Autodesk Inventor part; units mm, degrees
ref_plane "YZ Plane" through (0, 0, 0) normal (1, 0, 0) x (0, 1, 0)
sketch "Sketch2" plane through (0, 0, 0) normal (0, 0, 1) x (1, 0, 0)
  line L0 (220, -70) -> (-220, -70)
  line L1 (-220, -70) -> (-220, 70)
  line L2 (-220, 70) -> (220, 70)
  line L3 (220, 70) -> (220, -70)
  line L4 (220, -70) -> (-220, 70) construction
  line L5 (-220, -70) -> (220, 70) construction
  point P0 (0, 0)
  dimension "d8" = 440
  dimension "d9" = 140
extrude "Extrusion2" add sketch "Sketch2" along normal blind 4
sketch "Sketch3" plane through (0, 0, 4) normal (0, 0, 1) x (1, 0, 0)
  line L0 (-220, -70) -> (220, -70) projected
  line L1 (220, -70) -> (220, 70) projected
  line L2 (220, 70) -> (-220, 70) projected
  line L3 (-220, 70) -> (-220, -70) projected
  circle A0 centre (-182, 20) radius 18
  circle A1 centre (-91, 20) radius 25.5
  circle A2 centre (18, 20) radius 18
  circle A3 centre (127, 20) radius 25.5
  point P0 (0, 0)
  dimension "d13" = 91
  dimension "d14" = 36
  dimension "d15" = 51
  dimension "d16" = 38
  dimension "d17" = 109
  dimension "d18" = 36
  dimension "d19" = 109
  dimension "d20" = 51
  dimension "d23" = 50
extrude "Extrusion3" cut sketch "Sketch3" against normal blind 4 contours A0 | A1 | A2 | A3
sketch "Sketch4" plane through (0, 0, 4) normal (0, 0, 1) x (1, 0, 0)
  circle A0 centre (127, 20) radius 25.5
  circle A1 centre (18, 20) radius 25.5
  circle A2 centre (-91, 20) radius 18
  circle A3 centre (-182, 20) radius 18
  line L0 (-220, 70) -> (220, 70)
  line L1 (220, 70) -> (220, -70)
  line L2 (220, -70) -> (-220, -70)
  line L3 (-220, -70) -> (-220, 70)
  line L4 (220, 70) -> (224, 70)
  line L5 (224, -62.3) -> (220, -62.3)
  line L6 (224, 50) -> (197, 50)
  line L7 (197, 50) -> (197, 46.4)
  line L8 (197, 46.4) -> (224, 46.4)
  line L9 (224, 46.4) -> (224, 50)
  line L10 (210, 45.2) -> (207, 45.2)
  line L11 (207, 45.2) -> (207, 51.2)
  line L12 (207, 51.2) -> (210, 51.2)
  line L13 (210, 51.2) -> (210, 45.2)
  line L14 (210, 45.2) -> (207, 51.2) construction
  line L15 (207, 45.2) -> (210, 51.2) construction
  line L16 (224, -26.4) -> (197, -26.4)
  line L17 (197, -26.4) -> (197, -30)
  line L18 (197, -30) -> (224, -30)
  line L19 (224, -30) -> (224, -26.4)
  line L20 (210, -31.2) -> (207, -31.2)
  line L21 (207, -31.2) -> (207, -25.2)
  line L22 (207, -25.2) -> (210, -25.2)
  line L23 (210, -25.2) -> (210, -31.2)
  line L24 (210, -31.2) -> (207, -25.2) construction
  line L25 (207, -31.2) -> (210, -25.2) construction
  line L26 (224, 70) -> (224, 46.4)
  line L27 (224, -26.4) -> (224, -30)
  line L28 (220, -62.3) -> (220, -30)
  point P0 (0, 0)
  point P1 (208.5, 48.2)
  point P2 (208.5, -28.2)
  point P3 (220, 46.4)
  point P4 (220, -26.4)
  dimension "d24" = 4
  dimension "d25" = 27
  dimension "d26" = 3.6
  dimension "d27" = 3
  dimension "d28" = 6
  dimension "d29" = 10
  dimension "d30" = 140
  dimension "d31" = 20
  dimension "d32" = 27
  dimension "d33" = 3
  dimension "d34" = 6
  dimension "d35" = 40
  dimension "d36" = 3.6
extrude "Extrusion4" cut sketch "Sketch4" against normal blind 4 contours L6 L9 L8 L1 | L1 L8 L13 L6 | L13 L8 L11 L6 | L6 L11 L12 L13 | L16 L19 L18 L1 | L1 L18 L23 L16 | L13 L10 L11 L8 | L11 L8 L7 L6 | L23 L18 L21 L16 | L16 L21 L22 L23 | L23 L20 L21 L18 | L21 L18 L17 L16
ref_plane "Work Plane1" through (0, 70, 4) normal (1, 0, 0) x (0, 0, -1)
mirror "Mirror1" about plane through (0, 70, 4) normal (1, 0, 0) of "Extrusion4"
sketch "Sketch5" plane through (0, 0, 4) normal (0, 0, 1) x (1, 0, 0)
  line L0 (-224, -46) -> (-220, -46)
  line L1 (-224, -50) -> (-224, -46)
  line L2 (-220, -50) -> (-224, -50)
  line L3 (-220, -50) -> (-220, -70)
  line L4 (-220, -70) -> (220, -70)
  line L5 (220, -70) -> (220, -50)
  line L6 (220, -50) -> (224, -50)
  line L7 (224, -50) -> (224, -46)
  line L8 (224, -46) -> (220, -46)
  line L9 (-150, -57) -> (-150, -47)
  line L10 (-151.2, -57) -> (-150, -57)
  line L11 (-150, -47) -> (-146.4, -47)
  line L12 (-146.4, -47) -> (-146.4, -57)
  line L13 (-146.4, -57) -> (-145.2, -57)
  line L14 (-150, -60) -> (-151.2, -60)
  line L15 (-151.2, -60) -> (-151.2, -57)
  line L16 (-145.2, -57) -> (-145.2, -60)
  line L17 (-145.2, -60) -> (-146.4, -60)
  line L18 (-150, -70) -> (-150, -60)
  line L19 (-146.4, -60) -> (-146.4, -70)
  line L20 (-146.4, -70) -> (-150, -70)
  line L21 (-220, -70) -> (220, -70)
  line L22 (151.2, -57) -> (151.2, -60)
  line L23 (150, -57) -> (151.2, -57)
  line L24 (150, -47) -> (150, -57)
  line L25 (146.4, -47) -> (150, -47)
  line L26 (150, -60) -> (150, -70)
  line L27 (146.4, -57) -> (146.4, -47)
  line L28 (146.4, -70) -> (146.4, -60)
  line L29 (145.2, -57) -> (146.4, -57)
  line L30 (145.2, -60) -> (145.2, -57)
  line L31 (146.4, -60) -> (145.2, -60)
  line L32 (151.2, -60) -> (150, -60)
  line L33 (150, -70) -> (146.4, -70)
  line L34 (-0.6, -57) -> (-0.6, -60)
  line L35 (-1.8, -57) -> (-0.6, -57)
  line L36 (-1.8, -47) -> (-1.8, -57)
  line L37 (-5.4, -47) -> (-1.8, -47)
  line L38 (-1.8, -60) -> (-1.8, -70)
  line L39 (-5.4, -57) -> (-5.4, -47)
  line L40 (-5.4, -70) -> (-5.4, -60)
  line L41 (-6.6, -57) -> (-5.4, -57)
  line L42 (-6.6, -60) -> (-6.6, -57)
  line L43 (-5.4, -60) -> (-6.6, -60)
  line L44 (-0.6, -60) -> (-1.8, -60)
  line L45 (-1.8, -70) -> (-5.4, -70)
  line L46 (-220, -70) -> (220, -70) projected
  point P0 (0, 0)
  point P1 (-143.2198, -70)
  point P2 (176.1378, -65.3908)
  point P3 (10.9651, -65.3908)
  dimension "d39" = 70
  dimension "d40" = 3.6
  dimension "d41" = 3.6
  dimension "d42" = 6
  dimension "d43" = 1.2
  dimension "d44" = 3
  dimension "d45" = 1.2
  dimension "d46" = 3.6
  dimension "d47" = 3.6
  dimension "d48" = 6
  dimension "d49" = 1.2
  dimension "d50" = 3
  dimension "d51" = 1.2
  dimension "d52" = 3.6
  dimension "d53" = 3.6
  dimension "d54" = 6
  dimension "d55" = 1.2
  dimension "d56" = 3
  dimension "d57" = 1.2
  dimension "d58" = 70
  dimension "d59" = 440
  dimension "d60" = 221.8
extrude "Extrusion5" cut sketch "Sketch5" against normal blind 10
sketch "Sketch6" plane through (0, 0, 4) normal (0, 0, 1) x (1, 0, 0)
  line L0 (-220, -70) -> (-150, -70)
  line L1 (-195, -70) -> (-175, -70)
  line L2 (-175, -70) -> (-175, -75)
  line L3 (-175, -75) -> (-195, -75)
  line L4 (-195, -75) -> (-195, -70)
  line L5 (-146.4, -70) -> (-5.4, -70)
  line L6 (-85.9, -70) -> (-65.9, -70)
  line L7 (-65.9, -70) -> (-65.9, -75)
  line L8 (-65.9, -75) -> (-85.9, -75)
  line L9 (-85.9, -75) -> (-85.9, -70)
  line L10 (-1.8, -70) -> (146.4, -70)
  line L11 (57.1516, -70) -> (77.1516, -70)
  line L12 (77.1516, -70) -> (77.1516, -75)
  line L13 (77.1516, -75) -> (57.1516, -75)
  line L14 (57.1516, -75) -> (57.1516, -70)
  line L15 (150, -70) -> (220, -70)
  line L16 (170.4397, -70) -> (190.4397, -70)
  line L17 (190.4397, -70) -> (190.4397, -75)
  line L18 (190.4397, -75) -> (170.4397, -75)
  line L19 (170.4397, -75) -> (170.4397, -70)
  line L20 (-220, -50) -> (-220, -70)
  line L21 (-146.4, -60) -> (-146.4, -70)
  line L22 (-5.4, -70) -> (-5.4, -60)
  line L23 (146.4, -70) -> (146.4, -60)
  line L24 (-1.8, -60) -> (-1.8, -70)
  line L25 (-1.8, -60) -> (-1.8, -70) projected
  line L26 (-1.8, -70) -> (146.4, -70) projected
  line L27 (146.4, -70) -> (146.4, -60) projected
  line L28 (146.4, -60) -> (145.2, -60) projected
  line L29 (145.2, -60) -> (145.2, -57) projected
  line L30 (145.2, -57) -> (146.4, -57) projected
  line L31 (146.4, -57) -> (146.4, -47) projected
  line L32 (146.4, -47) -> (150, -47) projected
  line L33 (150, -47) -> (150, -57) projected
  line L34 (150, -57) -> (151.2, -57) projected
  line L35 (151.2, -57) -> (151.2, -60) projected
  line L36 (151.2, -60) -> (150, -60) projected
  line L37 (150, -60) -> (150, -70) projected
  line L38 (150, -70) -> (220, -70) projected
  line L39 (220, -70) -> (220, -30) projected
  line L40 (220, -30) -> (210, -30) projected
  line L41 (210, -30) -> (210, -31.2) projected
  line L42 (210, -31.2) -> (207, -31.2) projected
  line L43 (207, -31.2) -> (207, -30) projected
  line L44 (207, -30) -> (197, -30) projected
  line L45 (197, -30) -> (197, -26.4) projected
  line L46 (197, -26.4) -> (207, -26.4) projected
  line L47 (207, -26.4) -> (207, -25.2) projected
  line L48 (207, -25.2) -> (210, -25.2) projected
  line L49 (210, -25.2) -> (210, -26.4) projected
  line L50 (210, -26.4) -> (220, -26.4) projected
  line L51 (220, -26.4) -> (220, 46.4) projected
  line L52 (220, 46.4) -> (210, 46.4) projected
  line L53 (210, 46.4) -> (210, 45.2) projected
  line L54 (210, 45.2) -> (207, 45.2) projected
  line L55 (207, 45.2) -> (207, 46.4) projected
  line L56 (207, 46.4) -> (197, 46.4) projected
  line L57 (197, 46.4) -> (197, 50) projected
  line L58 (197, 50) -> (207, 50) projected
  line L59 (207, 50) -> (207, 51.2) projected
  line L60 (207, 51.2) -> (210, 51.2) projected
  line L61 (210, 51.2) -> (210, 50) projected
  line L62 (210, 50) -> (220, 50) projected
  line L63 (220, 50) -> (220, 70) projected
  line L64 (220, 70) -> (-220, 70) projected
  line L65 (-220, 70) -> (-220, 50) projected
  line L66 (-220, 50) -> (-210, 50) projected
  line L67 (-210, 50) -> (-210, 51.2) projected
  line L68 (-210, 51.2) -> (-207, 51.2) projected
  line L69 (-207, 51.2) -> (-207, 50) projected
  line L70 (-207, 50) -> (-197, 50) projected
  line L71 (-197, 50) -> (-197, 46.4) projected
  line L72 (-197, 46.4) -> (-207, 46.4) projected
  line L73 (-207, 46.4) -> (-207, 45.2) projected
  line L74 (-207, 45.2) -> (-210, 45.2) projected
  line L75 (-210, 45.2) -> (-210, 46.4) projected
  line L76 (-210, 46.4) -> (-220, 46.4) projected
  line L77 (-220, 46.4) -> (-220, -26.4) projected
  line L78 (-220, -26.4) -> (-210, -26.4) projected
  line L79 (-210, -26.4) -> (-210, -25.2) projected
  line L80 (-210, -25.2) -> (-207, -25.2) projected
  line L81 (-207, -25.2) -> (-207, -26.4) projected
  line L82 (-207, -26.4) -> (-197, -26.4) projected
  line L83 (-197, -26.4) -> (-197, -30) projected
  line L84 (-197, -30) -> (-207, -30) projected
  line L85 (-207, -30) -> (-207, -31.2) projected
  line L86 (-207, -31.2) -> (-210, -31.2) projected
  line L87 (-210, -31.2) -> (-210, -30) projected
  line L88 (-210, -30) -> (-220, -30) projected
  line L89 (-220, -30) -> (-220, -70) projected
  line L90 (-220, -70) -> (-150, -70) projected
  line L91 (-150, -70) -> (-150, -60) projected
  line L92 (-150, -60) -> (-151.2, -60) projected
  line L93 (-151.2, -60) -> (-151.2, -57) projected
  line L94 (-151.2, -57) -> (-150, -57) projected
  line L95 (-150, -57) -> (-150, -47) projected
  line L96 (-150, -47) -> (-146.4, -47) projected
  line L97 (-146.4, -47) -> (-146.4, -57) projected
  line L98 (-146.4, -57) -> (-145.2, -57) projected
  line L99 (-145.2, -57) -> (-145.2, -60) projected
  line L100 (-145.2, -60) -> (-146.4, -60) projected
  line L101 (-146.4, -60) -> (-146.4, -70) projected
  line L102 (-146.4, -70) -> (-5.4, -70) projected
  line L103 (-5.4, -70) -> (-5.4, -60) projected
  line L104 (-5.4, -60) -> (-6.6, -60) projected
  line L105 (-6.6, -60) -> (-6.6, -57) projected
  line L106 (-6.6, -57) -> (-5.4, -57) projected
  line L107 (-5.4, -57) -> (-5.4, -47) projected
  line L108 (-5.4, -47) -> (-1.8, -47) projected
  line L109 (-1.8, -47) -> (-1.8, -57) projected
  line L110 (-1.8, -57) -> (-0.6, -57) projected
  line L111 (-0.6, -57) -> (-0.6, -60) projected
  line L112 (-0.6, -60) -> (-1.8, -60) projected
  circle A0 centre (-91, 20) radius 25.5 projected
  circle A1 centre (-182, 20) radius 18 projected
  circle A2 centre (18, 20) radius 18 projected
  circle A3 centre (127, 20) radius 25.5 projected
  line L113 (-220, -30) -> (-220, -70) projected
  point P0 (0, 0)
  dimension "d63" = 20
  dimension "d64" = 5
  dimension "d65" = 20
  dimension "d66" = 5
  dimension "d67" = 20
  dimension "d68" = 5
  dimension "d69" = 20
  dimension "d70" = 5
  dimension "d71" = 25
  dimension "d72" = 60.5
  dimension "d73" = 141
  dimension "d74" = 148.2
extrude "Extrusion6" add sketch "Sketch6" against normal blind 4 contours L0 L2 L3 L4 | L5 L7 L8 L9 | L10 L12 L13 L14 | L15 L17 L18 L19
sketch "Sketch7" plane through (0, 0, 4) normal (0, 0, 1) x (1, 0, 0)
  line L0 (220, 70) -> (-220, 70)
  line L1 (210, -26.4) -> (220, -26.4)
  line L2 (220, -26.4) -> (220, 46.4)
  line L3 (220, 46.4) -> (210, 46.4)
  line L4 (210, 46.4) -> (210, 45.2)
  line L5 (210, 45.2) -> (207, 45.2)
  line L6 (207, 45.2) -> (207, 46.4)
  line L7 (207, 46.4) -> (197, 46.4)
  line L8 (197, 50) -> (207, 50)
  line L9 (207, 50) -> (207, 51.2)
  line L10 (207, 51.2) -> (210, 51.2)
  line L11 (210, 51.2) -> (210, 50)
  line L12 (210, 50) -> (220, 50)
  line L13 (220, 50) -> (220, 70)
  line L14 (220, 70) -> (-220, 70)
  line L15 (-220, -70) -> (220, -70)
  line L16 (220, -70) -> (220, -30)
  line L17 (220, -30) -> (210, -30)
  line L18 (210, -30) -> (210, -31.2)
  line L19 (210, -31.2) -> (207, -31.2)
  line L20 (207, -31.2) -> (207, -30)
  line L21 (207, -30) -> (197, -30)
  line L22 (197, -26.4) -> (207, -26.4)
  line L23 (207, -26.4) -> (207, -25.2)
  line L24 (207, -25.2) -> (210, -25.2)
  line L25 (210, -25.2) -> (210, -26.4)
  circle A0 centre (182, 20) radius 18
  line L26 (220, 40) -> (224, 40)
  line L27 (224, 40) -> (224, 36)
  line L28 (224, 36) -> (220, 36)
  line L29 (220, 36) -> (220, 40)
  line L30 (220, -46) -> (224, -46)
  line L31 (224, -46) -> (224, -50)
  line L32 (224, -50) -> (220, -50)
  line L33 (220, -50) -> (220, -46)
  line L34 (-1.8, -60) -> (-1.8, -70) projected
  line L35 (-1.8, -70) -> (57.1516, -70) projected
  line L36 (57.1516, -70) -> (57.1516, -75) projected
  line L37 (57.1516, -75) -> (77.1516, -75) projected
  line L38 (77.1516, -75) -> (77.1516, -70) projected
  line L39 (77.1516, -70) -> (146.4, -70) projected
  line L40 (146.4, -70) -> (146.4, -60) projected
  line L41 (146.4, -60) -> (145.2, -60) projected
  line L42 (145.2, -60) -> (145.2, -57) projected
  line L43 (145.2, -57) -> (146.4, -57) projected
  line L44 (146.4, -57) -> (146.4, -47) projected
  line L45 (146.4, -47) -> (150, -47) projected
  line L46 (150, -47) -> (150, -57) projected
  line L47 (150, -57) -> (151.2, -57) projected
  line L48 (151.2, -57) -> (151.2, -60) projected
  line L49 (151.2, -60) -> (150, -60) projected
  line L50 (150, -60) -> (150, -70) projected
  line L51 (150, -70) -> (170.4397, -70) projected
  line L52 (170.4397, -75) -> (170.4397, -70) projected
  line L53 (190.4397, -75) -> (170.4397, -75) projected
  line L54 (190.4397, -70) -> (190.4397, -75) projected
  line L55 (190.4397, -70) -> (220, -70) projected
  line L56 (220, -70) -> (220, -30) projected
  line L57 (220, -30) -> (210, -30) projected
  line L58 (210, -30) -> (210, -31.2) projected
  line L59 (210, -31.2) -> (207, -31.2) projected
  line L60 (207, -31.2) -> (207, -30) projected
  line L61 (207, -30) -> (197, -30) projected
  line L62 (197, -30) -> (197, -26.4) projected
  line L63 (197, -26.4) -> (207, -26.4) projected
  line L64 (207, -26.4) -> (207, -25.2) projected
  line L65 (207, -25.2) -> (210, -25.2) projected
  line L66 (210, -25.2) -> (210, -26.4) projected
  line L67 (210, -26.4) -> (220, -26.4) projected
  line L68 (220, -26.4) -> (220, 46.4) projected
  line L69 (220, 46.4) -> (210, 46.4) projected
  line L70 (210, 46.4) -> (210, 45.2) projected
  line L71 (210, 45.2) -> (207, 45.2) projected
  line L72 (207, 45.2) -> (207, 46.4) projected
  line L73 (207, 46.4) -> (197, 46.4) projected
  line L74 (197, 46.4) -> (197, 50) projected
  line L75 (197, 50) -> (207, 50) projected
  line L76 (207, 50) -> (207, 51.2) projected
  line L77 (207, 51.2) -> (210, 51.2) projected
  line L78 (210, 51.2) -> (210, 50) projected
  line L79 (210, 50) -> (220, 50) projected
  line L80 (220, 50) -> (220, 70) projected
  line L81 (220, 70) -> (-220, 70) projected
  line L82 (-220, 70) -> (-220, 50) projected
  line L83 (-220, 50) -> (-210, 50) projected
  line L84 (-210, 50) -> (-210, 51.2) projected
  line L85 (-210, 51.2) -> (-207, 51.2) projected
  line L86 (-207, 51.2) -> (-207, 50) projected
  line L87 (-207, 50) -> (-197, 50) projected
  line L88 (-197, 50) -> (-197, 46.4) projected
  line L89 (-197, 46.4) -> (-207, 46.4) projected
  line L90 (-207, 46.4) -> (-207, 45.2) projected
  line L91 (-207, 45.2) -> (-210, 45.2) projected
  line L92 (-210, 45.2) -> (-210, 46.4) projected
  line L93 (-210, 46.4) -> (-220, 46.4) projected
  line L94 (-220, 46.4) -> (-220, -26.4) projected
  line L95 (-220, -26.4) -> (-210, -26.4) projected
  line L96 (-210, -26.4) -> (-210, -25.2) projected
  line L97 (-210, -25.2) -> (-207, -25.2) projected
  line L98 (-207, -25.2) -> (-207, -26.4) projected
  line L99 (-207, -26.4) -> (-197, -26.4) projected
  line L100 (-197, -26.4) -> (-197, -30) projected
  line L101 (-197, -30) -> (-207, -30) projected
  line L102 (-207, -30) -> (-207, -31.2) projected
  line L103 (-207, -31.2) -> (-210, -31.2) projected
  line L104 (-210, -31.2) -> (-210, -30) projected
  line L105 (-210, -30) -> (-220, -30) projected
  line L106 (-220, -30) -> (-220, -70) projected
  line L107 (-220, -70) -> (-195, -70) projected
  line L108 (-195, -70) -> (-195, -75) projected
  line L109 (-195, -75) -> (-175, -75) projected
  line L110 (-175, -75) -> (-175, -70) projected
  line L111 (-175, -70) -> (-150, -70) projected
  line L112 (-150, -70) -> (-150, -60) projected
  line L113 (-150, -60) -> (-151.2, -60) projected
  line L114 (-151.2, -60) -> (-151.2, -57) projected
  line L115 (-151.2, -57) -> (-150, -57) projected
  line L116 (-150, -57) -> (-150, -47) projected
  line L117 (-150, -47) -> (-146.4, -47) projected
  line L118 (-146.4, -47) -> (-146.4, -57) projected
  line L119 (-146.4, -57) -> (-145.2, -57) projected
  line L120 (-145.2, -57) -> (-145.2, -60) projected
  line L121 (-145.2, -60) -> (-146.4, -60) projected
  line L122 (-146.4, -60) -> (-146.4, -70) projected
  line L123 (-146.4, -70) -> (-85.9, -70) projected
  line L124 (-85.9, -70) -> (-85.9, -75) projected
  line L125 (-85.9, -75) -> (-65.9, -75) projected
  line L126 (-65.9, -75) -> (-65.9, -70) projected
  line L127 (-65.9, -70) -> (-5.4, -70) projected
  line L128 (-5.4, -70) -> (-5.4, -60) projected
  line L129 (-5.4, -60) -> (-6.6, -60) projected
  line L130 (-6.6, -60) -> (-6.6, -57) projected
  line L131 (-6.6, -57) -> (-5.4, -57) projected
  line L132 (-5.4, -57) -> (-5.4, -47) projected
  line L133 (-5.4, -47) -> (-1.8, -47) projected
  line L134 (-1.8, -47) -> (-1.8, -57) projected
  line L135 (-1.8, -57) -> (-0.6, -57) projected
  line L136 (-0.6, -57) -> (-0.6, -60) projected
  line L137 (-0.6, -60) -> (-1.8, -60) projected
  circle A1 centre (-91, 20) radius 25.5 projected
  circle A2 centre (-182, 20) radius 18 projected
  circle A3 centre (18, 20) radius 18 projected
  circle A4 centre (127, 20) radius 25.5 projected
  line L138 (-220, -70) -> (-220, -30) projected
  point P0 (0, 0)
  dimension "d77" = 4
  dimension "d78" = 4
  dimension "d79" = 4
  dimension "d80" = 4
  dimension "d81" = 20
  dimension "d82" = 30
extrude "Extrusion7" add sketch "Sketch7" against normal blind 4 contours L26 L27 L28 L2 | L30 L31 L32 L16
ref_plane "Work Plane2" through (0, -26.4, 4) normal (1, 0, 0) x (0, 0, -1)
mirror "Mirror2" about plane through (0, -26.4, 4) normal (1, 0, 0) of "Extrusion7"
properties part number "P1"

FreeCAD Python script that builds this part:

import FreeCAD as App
import Part
import Sketcher
Q = App.Units.Quantity

doc = App.newDocument("Part")
params = doc.addObject("Spreadsheet::Sheet", "Params")
for row, (alias, value) in enumerate([
    ("sketch1_width", "440 mm"),
    ("sketch1_height", "140 mm"),
    ("pad1_length", "4 mm"),
    ("sketch2_diameter", "36 mm"),
    ("sketch2_diameter2", "51 mm"),
    ("pocket1_length", "4 mm"),
    ("sketch3_width", "3 mm"),
    ("sketch3_width2", "10 mm"),
    ("sketch3_height", "3.6 mm"),
    ("sketch3_width3", "14 mm"),
    ("pocket2_length", "4 mm"),
    ("sketch4_height", "3 mm"),
    ("sketch4_width", "3.6 mm"),
    ("sketch4_width2", "1.2 mm"),
    ("sketch4_height2", "10 mm"),
    ("pocket3_length", "10 mm"),
    ("sketch5_width", "20 mm"),
    ("sketch5_height", "5 mm"),
    ("pad2_length", "4 mm"),
    ("sketch6_width", "4 mm"),
    ("pad3_length", "4 mm"),
], start=1):
    params.set(f"A{row}", alias)
    params.set(f"B{row}", "=" + value)
    params.setAlias(f"B{row}", alias)

body = doc.addObject("PartDesign::Body", "Body")

sketch1 = body.newObject("Sketcher::SketchObject", "Sketch")
sketch1.AttachmentSupport = (doc.getObject("XY_Plane"), [""])
sketch1.MapMode = "FlatFace"
sketch1.addGeometry([
    Part.LineSegment(App.Vector(-220, -70, 0), App.Vector(220, -70, 0)),
    Part.LineSegment(App.Vector(220, -70, 0), App.Vector(220, 70, 0)),
    Part.LineSegment(App.Vector(220, 70, 0), App.Vector(-220, 70, 0)),
    Part.LineSegment(App.Vector(-220, 70, 0), App.Vector(-220, -70, 0)),
], False)
sketch1.addConstraint([
    Sketcher.Constraint("Coincident", 0, 2, 1, 1),
    Sketcher.Constraint("Coincident", 1, 2, 2, 1),
    Sketcher.Constraint("Coincident", 2, 2, 3, 1),
    Sketcher.Constraint("Coincident", 3, 2, 0, 1),
    Sketcher.Constraint("Horizontal", 0),
    Sketcher.Constraint("Vertical", 1),
    Sketcher.Constraint("Horizontal", 2),
    Sketcher.Constraint("Vertical", 3),
    Sketcher.Constraint("Symmetric", 0, 2, 2, 2, -1, 1),
    Sketcher.Constraint("DistanceX", 0, 1, 0, 2, Q("440 mm")),
    Sketcher.Constraint("DistanceY", 1, 1, 1, 2, Q("140 mm")),
])
sketch1.setExpression("Constraints[9]", "Params.sketch1_width")
sketch1.setExpression("Constraints[10]", "Params.sketch1_height")
pad1 = body.newObject("PartDesign::Pad", "Pad")
pad1.Profile = sketch1
pad1.setExpression("Length", "Params.pad1_length")

sketch2 = body.newObject("Sketcher::SketchObject", "Sketch001")
sketch2.AttachmentSupport = (doc.getObject("XY_Plane"), [""])
sketch2.MapMode = "FlatFace"
sketch2.AttachmentOffset = App.Placement(App.Vector(0, 0, 4), App.Rotation())
sketch2.addGeometry([
    Part.Circle(App.Vector(-182, 20, 0), App.Vector(0, 0, 1), 18),
    Part.Circle(App.Vector(-91, 20, 0), App.Vector(0, 0, 1), 25.5),
    Part.Circle(App.Vector(18, 20, 0), App.Vector(0, 0, 1), 18),
    Part.Circle(App.Vector(127, 20, 0), App.Vector(0, 0, 1), 25.5),
], False)
sketch2.addConstraint([
    Sketcher.Constraint("Equal", 0, 2),
    Sketcher.Constraint("Equal", 1, 3),
    Sketcher.Constraint("Horizontal", 0, 3, 1, 3),
    Sketcher.Constraint("Horizontal", 1, 3, 2, 3),
    Sketcher.Constraint("Horizontal", 2, 3, 3, 3),
    Sketcher.Constraint("Diameter", 0, Q("36 mm")),
    Sketcher.Constraint("Diameter", 1, Q("51 mm")),
    Sketcher.Constraint("DistanceX", 1, 3, -1, 1, Q("91 mm")),
    Sketcher.Constraint("DistanceX", 0, 3, 1, 3, Q("91 mm")),
    Sketcher.Constraint("DistanceX", 1, 3, 2, 3, Q("109 mm")),
    Sketcher.Constraint("DistanceX", 2, 3, 3, 3, Q("109 mm")),
    Sketcher.Constraint("DistanceY", -1, 1, 0, 3, Q("20 mm")),
])
sketch2.setExpression("Constraints[5]", "Params.sketch2_diameter")
sketch2.setExpression("Constraints[6]", "Params.sketch2_diameter2")
pocket1 = body.newObject("PartDesign::Pocket", "Pocket")
pocket1.Profile = sketch2
pocket1.setExpression("Length", "Params.pocket1_length")

sketch3 = body.newObject("Sketcher::SketchObject", "Sketch002")
sketch3.AttachmentSupport = (doc.getObject("XY_Plane"), [""])
sketch3.MapMode = "FlatFace"
sketch3.AttachmentOffset = App.Placement(App.Vector(0, 0, 4), App.Rotation())
sketch3.addGeometry([
    Part.LineSegment(App.Vector(224, 50, 0), App.Vector(210, 50, 0)),
    Part.LineSegment(App.Vector(210, 50, 0), App.Vector(210, 51.2, 0)),
    Part.LineSegment(App.Vector(210, 51.2, 0), App.Vector(207, 51.2, 0)),
    Part.LineSegment(App.Vector(207, 51.2, 0), App.Vector(207, 50, 0)),
    Part.LineSegment(App.Vector(207, 50, 0), App.Vector(197, 50, 0)),
    Part.LineSegment(App.Vector(197, 50, 0), App.Vector(197, 46.4, 0)),
    Part.LineSegment(App.Vector(197, 46.4, 0), App.Vector(207, 46.4, 0)),
    Part.LineSegment(App.Vector(207, 46.4, 0), App.Vector(207, 45.2, 0)),
    Part.LineSegment(App.Vector(207, 45.2, 0), App.Vector(210, 45.2, 0)),
    Part.LineSegment(App.Vector(210, 45.2, 0), App.Vector(210, 46.4, 0)),
    Part.LineSegment(App.Vector(210, 46.4, 0), App.Vector(224, 46.4, 0)),
    Part.LineSegment(App.Vector(224, 46.4, 0), App.Vector(224, 50, 0)),
    Part.LineSegment(App.Vector(224, -26.4, 0), App.Vector(210, -26.4, 0)),
    Part.LineSegment(App.Vector(210, -26.4, 0), App.Vector(210, -25.2, 0)),
    Part.LineSegment(App.Vector(210, -25.2, 0), App.Vector(207, -25.2, 0)),
    Part.LineSegment(App.Vector(207, -25.2, 0), App.Vector(207, -26.4, 0)),
    Part.LineSegment(App.Vector(207, -26.4, 0), App.Vector(197, -26.4, 0)),
    Part.LineSegment(App.Vector(197, -26.4, 0), App.Vector(197, -30, 0)),
    Part.LineSegment(App.Vector(197, -30, 0), App.Vector(207, -30, 0)),
    Part.LineSegment(App.Vector(207, -30, 0), App.Vector(207, -31.2, 0)),
    Part.LineSegment(App.Vector(207, -31.2, 0), App.Vector(210, -31.2, 0)),
    Part.LineSegment(App.Vector(210, -31.2, 0), App.Vector(210, -30, 0)),
    Part.LineSegment(App.Vector(210, -30, 0), App.Vector(224, -30, 0)),
    Part.LineSegment(App.Vector(224, -30, 0), App.Vector(224, -26.4, 0)),
], False)
sketch3.addConstraint([
    Sketcher.Constraint("Coincident", 0, 2, 1, 1),
    Sketcher.Constraint("Coincident", 1, 2, 2, 1),
    Sketcher.Constraint("Coincident", 2, 2, 3, 1),
    Sketcher.Constraint("Coincident", 3, 2, 4, 1),
    Sketcher.Constraint("Coincident", 4, 2, 5, 1),
    Sketcher.Constraint("Coincident", 5, 2, 6, 1),
    Sketcher.Constraint("Coincident", 6, 2, 7, 1),
    Sketcher.Constraint("Coincident", 7, 2, 8, 1),
    Sketcher.Constraint("Coincident", 8, 2, 9, 1),
    Sketcher.Constraint("Coincident", 9, 2, 10, 1),
    Sketcher.Constraint("Coincident", 10, 2, 11, 1),
    Sketcher.Constraint("Coincident", 11, 2, 0, 1),
    Sketcher.Constraint("Coincident", 12, 2, 13, 1),
    Sketcher.Constraint("Coincident", 13, 2, 14, 1),
    Sketcher.Constraint("Coincident", 14, 2, 15, 1),
    Sketcher.Constraint("Coincident", 15, 2, 16, 1),
    Sketcher.Constraint("Coincident", 16, 2, 17, 1),
    Sketcher.Constraint("Coincident", 17, 2, 18, 1),
    Sketcher.Constraint("Coincident", 18, 2, 19, 1),
    Sketcher.Constraint("Coincident", 19, 2, 20, 1),
    Sketcher.Constraint("Coincident", 20, 2, 21, 1),
    Sketcher.Constraint("Coincident", 21, 2, 22, 1),
    Sketcher.Constraint("Coincident", 22, 2, 23, 1),
    Sketcher.Constraint("Coincident", 23, 2, 12, 1),
    Sketcher.Constraint("Horizontal", 0),
    Sketcher.Constraint("Vertical", 1),
    Sketcher.Constraint("Horizontal", 2),
    Sketcher.Constraint("Vertical", 3),
    Sketcher.Constraint("Horizontal", 4),
    Sketcher.Constraint("Vertical", 5),
    Sketcher.Constraint("Horizontal", 6),
    Sketcher.Constraint("Vertical", 7),
    Sketcher.Constraint("Horizontal", 8),
    Sketcher.Constraint("Vertical", 9),
    Sketcher.Constraint("Horizontal", 10),
    Sketcher.Constraint("Vertical", 11),
    Sketcher.Constraint("Horizontal", 12),
    Sketcher.Constraint("Vertical", 13),
    Sketcher.Constraint("Horizontal", 14),
    Sketcher.Constraint("Vertical", 15),
    Sketcher.Constraint("Horizontal", 16),
    Sketcher.Constraint("Vertical", 17),
    Sketcher.Constraint("Horizontal", 18),
    Sketcher.Constraint("Vertical", 19),
    Sketcher.Constraint("Horizontal", 20),
    Sketcher.Constraint("Vertical", 21),
    Sketcher.Constraint("Horizontal", 22),
    Sketcher.Constraint("Vertical", 23),
    Sketcher.Constraint("Horizontal", 0, 2, 3, 2),
    Sketcher.Constraint("Horizontal", 6, 2, 9, 2),
    Sketcher.Constraint("Horizontal", 12, 2, 15, 2),
    Sketcher.Constraint("Horizontal", 18, 2, 21, 2),
    Sketcher.Constraint("Vertical", 3, 2, 6, 2),
    Sketcher.Constraint("Vertical", 1, 2, 8, 2),
    Sketcher.Constraint("Vertical", 9, 2, 12, 2),
    Sketcher.Constraint("Vertical", 7, 2, 14, 2),
    Sketcher.Constraint("Vertical", 5, 2, 16, 2),
    Sketcher.Constraint("Vertical", 15, 2, 18, 2),
    Sketcher.Constraint("Vertical", 13, 2, 20, 2),
    Sketcher.Constraint("Vertical", 11, 2, 22, 2),
    Sketcher.Constraint("Equal", 3, 7),
    Sketcher.Constraint("Equal", 9, 13),
    Sketcher.Constraint("Equal", 11, 17),
    Sketcher.Constraint("Equal", 15, 19),
    Sketcher.Constraint("DistanceX", 2, 2, 2, 1, Q("3 mm")),
    Sketcher.Constraint("DistanceX", 4, 2, 4, 1, Q("10 mm")),
    Sketcher.Constraint("DistanceY", 5, 2, 5, 1, Q("3.6 mm")),
    Sketcher.Constraint("DistanceY", 7, 2, 2, 2, Q("6 mm")),
    Sketcher.Constraint("DistanceX", 0, 2, 0, 1, Q("14 mm")),
    Sketcher.Constraint("DistanceX", -1, 1, 0, 2, Q("210 mm")),
    Sketcher.Constraint("DistanceY", -1, 1, 0, 2, Q("50 mm")),
    Sketcher.Constraint("DistanceY", 17, 2, -1, 1, Q("30 mm")),
])
sketch3.setExpression("Constraints[64]", "Params.sketch3_width")
sketch3.setExpression("Constraints[65]", "Params.sketch3_width2")
sketch3.setExpression("Constraints[66]", "Params.sketch3_height")
sketch3.setExpression("Constraints[68]", "Params.sketch3_width3")
pocket2 = body.newObject("PartDesign::Pocket", "Pocket001")
pocket2.Profile = sketch3
pocket2.setExpression("Length", "Params.pocket2_length")
doc.recompute()

mirrored = body.newObject("PartDesign::Mirrored", "Mirrored")
mirrored.Originals = [pocket2]
mirrored.MirrorPlane = (doc.getObject("YZ_Plane"), [""])
body.Tip = mirrored

sketch4 = body.newObject("Sketcher::SketchObject", "Sketch003")
sketch4.AttachmentSupport = (doc.getObject("XY_Plane"), [""])
sketch4.MapMode = "FlatFace"
sketch4.AttachmentOffset = App.Placement(App.Vector(0, 0, 4), App.Rotation())
sketch4.addGeometry([
    Part.LineSegment(App.Vector(-150, -60, 0), App.Vector(-150, -70, 0)),
    Part.LineSegment(App.Vector(-150, -70, 0), App.Vector(-146.4, -70, 0)),
    Part.LineSegment(App.Vector(-146.4, -70, 0), App.Vector(-146.4, -60, 0)),
    Part.LineSegment(App.Vector(-146.4, -60, 0), App.Vector(-145.2, -60, 0)),
    Part.LineSegment(App.Vector(-145.2, -60, 0), App.Vector(-145.2, -57, 0)),
    Part.LineSegment(App.Vector(-145.2, -57, 0), App.Vector(-146.4, -57, 0)),
    Part.LineSegment(App.Vector(-146.4, -57, 0), App.Vector(-146.4, -47, 0)),
    Part.LineSegment(App.Vector(-146.4, -47, 0), App.Vector(-150, -47, 0)),
    Part.LineSegment(App.Vector(-150, -47, 0), App.Vector(-150, -57, 0)),
    Part.LineSegment(App.Vector(-150, -57, 0), App.Vector(-151.2, -57, 0)),
    Part.LineSegment(App.Vector(-151.2, -57, 0), App.Vector(-151.2, -60, 0)),
    Part.LineSegment(App.Vector(-151.2, -60, 0), App.Vector(-150, -60, 0)),
    Part.LineSegment(App.Vector(146.4, -60, 0), App.Vector(146.4, -70, 0)),
    Part.LineSegment(App.Vector(146.4, -70, 0), App.Vector(150, -70, 0)),
    Part.LineSegment(App.Vector(150, -70, 0), App.Vector(150, -60, 0)),
    Part.LineSegment(App.Vector(150, -60, 0), App.Vector(151.2, -60, 0)),
    Part.LineSegment(App.Vector(151.2, -60, 0), App.Vector(151.2, -57, 0)),
    Part.LineSegment(App.Vector(151.2, -57, 0), App.Vector(150, -57, 0)),
    Part.LineSegment(App.Vector(150, -57, 0), App.Vector(150, -47, 0)),
    Part.LineSegment(App.Vector(150, -47, 0), App.Vector(146.4, -47, 0)),
    Part.LineSegment(App.Vector(146.4, -47, 0), App.Vector(146.4, -57, 0)),
    Part.LineSegment(App.Vector(146.4, -57, 0), App.Vector(145.2, -57, 0)),
    Part.LineSegment(App.Vector(145.2, -57, 0), App.Vector(145.2, -60, 0)),
    Part.LineSegment(App.Vector(145.2, -60, 0), App.Vector(146.4, -60, 0)),
    Part.LineSegment(App.Vector(-5.4, -60, 0), App.Vector(-5.4, -70, 0)),
    Part.LineSegment(App.Vector(-5.4, -70, 0), App.Vector(-1.8, -70, 0)),
    Part.LineSegment(App.Vector(-1.8, -70, 0), App.Vector(-1.8, -60, 0)),
    Part.LineSegment(App.Vector(-1.8, -60, 0), App.Vector(-0.6, -60, 0)),
    Part.LineSegment(App.Vector(-0.6, -60, 0), App.Vector(-0.6, -57, 0)),
    Part.LineSegment(App.Vector(-0.6, -57, 0), App.Vector(-1.8, -57, 0)),
    Part.LineSegment(App.Vector(-1.8, -57, 0), App.Vector(-1.8, -47, 0)),
    Part.LineSegment(App.Vector(-1.8, -47, 0), App.Vector(-5.4, -47, 0)),
    Part.LineSegment(App.Vector(-5.4, -47, 0), App.Vector(-5.4, -57, 0)),
    Part.LineSegment(App.Vector(-5.4, -57, 0), App.Vector(-6.6, -57, 0)),
    Part.LineSegment(App.Vector(-6.6, -57, 0), App.Vector(-6.6, -60, 0)),
    Part.LineSegment(App.Vector(-6.6, -60, 0), App.Vector(-5.4, -60, 0)),
], False)
sketch4.addConstraint([
    Sketcher.Constraint("Coincident", 0, 2, 1, 1),
    Sketcher.Constraint("Coincident", 1, 2, 2, 1),
    Sketcher.Constraint("Coincident", 2, 2, 3, 1),
    Sketcher.Constraint("Coincident", 3, 2, 4, 1),
    Sketcher.Constraint("Coincident", 4, 2, 5, 1),
    Sketcher.Constraint("Coincident", 5, 2, 6, 1),
    Sketcher.Constraint("Coincident", 6, 2, 7, 1),
    Sketcher.Constraint("Coincident", 7, 2, 8, 1),
    Sketcher.Constraint("Coincident", 8, 2, 9, 1),
    Sketcher.Constraint("Coincident", 9, 2, 10, 1),
    Sketcher.Constraint("Coincident", 10, 2, 11, 1),
    Sketcher.Constraint("Coincident", 11, 2, 0, 1),
    Sketcher.Constraint("Coincident", 12, 2, 13, 1),
    Sketcher.Constraint("Coincident", 13, 2, 14, 1),
    Sketcher.Constraint("Coincident", 14, 2, 15, 1),
    Sketcher.Constraint("Coincident", 15, 2, 16, 1),
    Sketcher.Constraint("Coincident", 16, 2, 17, 1),
    Sketcher.Constraint("Coincident", 17, 2, 18, 1),
    Sketcher.Constraint("Coincident", 18, 2, 19, 1),
    Sketcher.Constraint("Coincident", 19, 2, 20, 1),
    Sketcher.Constraint("Coincident", 20, 2, 21, 1),
    Sketcher.Constraint("Coincident", 21, 2, 22, 1),
    Sketcher.Constraint("Coincident", 22, 2, 23, 1),
    Sketcher.Constraint("Coincident", 23, 2, 12, 1),
    Sketcher.Constraint("Coincident", 24, 2, 25, 1),
    Sketcher.Constraint("Coincident", 25, 2, 26, 1),
    Sketcher.Constraint("Coincident", 26, 2, 27, 1),
    Sketcher.Constraint("Coincident", 27, 2, 28, 1),
    Sketcher.Constraint("Coincident", 28, 2, 29, 1),
    Sketcher.Constraint("Coincident", 29, 2, 30, 1),
    Sketcher.Constraint("Coincident", 30, 2, 31, 1),
    Sketcher.Constraint("Coincident", 31, 2, 32, 1),
    Sketcher.Constraint("Coincident", 32, 2, 33, 1),
    Sketcher.Constraint("Coincident", 33, 2, 34, 1),
    Sketcher.Constraint("Coincident", 34, 2, 35, 1),
    Sketcher.Constraint("Coincident", 35, 2, 24, 1),
    Sketcher.Constraint("Vertical", 0),
    Sketcher.Constraint("Horizontal", 1),
    Sketcher.Constraint("Vertical", 2),
    Sketcher.Constraint("Horizontal", 3),
    Sketcher.Constraint("Vertical", 4),
    Sketcher.Constraint("Horizontal", 5),
    Sketcher.Constraint("Vertical", 6),
    Sketcher.Constraint("Horizontal", 7),
    Sketcher.Constraint("Vertical", 8),
    Sketcher.Constraint("Horizontal", 9),
    Sketcher.Constraint("Vertical", 10),
    Sketcher.Constraint("Horizontal", 11),
    Sketcher.Constraint("Vertical", 12),
    Sketcher.Constraint("Horizontal", 13),
    Sketcher.Constraint("Vertical", 14),
    Sketcher.Constraint("Horizontal", 15),
    Sketcher.Constraint("Vertical", 16),
    Sketcher.Constraint("Horizontal", 17),
    Sketcher.Constraint("Vertical", 18),
    Sketcher.Constraint("Horizontal", 19),
    Sketcher.Constraint("Vertical", 20),
    Sketcher.Constraint("Horizontal", 21),
    Sketcher.Constraint("Vertical", 22),
    Sketcher.Constraint("Horizontal", 23),
    Sketcher.Constraint("Vertical", 24),
    Sketcher.Constraint("Horizontal", 25),
    Sketcher.Constraint("Vertical", 26),
    Sketcher.Constraint("Horizontal", 27),
    Sketcher.Constraint("Vertical", 28),
    Sketcher.Constraint("Horizontal", 29),
    Sketcher.Constraint("Vertical", 30),
    Sketcher.Constraint("Horizontal", 31),
    Sketcher.Constraint("Vertical", 32),
    Sketcher.Constraint("Horizontal", 33),
    Sketcher.Constraint("Vertical", 34),
    Sketcher.Constraint("Horizontal", 35),
    Sketcher.Constraint("Symmetric", 1, 2, 12, 2, -2),
    Sketcher.Constraint("Symmetric", 11, 2, 14, 2, -2),
    Sketcher.Constraint("Symmetric", 9, 2, 16, 2, -2),
    Sketcher.Constraint("Symmetric", 7, 2, 18, 2, -2),
    Sketcher.Constraint("Symmetric", 5, 2, 20, 2, -2),
    Sketcher.Constraint("Symmetric", 3, 2, 22, 2, -2),
    Sketcher.Constraint("Horizontal", 5, 2, 8, 2),
    Sketcher.Constraint("Horizontal", 3, 2, 10, 2),
    Sketcher.Constraint("Horizontal", 13, 2, 24, 2),
    Sketcher.Constraint("Horizontal", 23, 2, 26, 2),
    Sketcher.Constraint("Horizontal", 21, 2, 28, 2),
    Sketcher.Constraint("Horizontal", 19, 2, 30, 2),
    Sketcher.Constraint("Horizontal", 29, 2, 32, 2),
    Sketcher.Constraint("Horizontal", 27, 2, 34, 2),
    Sketcher.Constraint("Vertical", 2, 2, 5, 2),
    Sketcher.Constraint("Vertical", 0, 2, 7, 2),
    Sketcher.Constraint("Vertical", 26, 2, 29, 2),
    Sketcher.Constraint("Vertical", 24, 2, 31, 2),
    Sketcher.Constraint("Equal", 5, 9),
    Sketcher.Constraint("Equal", 19, 25),
    Sketcher.Constraint("Equal", 23, 27),
    Sketcher.Constraint("Equal", 29, 33),
    Sketcher.Constraint("Equal", 2, 6),
    Sketcher.Constraint("DistanceY", 4, 1, 4, 2, Q("3 mm")),
    Sketcher.Constraint("DistanceX", 1, 1, 1, 2, Q("3.6 mm")),
    Sketcher.Constraint("DistanceX", 3, 1, 3, 2, Q("1.2 mm")),
    Sketcher.Constraint("DistanceY", 0, 2, -1, 1, Q("70 mm")),
    Sketcher.Constraint("DistanceY", 0, 2, 0, 1, Q("10 mm")),
    Sketcher.Constraint("DistanceX", 0, 2, -1, 1, Q("150 mm")),
    Sketcher.Constraint("DistanceX", 1, 2, 24, 2, Q("141 mm")),
])
sketch4.setExpression("Constraints[95]", "Params.sketch4_height")
sketch4.setExpression("Constraints[96]", "Params.sketch4_width")
sketch4.setExpression("Constraints[97]", "Params.sketch4_width2")
sketch4.setExpression("Constraints[99]", "Params.sketch4_height2")
pocket3 = body.newObject("PartDesign::Pocket", "Pocket002")
pocket3.Profile = sketch4
pocket3.setExpression("Length", "Params.pocket3_length")

sketch5 = body.newObject("Sketcher::SketchObject", "Sketch004")
sketch5.AttachmentSupport = (doc.getObject("XY_Plane"), [""])
sketch5.MapMode = "FlatFace"
sketch5.AttachmentOffset = App.Placement(App.Vector(0, 0, 4), App.Rotation())
sketch5.addGeometry([
    Part.LineSegment(App.Vector(-175, -70, 0), App.Vector(-195, -70, 0)),
    Part.LineSegment(App.Vector(-195, -70, 0), App.Vector(-195, -75, 0)),
    Part.LineSegment(App.Vector(-195, -75, 0), App.Vector(-175, -75, 0)),
    Part.LineSegment(App.Vector(-175, -75, 0), App.Vector(-175, -70, 0)),
    Part.LineSegment(App.Vector(-65.9, -70, 0), App.Vector(-85.9, -70, 0)),
    Part.LineSegment(App.Vector(-85.9, -70, 0), App.Vector(-85.9, -75, 0)),
    Part.LineSegment(App.Vector(-85.9, -75, 0), App.Vector(-65.9, -75, 0)),
    Part.LineSegment(App.Vector(-65.9, -75, 0), App.Vector(-65.9, -70, 0)),
    Part.LineSegment(App.Vector(77.1516, -70, 0), App.Vector(57.1516, -70, 0)),
    Part.LineSegment(App.Vector(57.1516, -70, 0), App.Vector(57.1516, -75, 0)),
    Part.LineSegment(App.Vector(57.1516, -75, 0), App.Vector(77.1516, -75, 0)),
    Part.LineSegment(App.Vector(77.1516, -75, 0), App.Vector(77.1516, -70, 0)),
    Part.LineSegment(App.Vector(190.4397, -70, 0), App.Vector(170.4397, -70, 0)),
    Part.LineSegment(App.Vector(170.4397, -70, 0), App.Vector(170.4397, -75, 0)),
    Part.LineSegment(App.Vector(170.4397, -75, 0), App.Vector(190.4397, -75, 0)),
    Part.LineSegment(App.Vector(190.4397, -75, 0), App.Vector(190.4397, -70, 0)),
], False)
sketch5.addConstraint([
    Sketcher.Constraint("Coincident", 0, 2, 1, 1),
    Sketcher.Constraint("Coincident", 1, 2, 2, 1),
    Sketcher.Constraint("Coincident", 2, 2, 3, 1),
    Sketcher.Constraint("Coincident", 3, 2, 0, 1),
    Sketcher.Constraint("Coincident", 4, 2, 5, 1),
    Sketcher.Constraint("Coincident", 5, 2, 6, 1),
    Sketcher.Constraint("Coincident", 6, 2, 7, 1),
    Sketcher.Constraint("Coincident", 7, 2, 4, 1),
    Sketcher.Constraint("Coincident", 8, 2, 9, 1),
    Sketcher.Constraint("Coincident", 9, 2, 10, 1),
    Sketcher.Constraint("Coincident", 10, 2, 11, 1),
    Sketcher.Constraint("Coincident", 11, 2, 8, 1),
    Sketcher.Constraint("Coincident", 12, 2, 13, 1),
    Sketcher.Constraint("Coincident", 13, 2, 14, 1),
    Sketcher.Constraint("Coincident", 14, 2, 15, 1),
    Sketcher.Constraint("Coincident", 15, 2, 12, 1),
    Sketcher.Constraint("Horizontal", 0),
    Sketcher.Constraint("Vertical", 1),
    Sketcher.Constraint("Horizontal", 2),
    Sketcher.Constraint("Vertical", 3),
    Sketcher.Constraint("Horizontal", 4),
    Sketcher.Constraint("Vertical", 5),
    Sketcher.Constraint("Horizontal", 6),
    Sketcher.Constraint("Vertical", 7),
    Sketcher.Constraint("Horizontal", 8),
    Sketcher.Constraint("Vertical", 9),
    Sketcher.Constraint("Horizontal", 10),
    Sketcher.Constraint("Vertical", 11),
    Sketcher.Constraint("Horizontal", 12),
    Sketcher.Constraint("Vertical", 13),
    Sketcher.Constraint("Horizontal", 14),
    Sketcher.Constraint("Vertical", 15),
    Sketcher.Constraint("Horizontal", 3, 2, 4, 2),
    Sketcher.Constraint("Horizontal", 2, 2, 5, 2),
    Sketcher.Constraint("Horizontal", 7, 2, 8, 2),
    Sketcher.Constraint("Horizontal", 6, 2, 9, 2),
    Sketcher.Constraint("Horizontal", 11, 2, 12, 2),
    Sketcher.Constraint("Horizontal", 10, 2, 13, 2),
    Sketcher.Constraint("Equal", 2, 4),
    Sketcher.Constraint("Equal", 6, 8),
    Sketcher.Constraint("Equal", 10, 12),
    Sketcher.Constraint("DistanceX", 0, 2, 0, 1, Q("20 mm")),
    Sketcher.Constraint("DistanceY", 1, 2, 1, 1, Q("5 mm")),
    Sketcher.Constraint("DistanceX", 0, 2, -1, 1, Q("195 mm")),
    Sketcher.Constraint("DistanceY", 0, 2, -1, 1, Q("70 mm")),
    Sketcher.Constraint("DistanceX", 4, 2, -1, 1, Q("85.9 mm")),
    Sketcher.Constraint("DistanceX", 11, 2, 12, 2, Q("93.288 mm")),
    Sketcher.Constraint("DistanceX", -1, 1, 8, 2, Q("57.1516 mm")),
])
sketch5.setExpression("Constraints[41]", "Params.sketch5_width")
sketch5.setExpression("Constraints[42]", "Params.sketch5_height")
pad2 = body.newObject("PartDesign::Pad", "Pad001")
pad2.Profile = sketch5
pad2.setExpression("Length", "Params.pad2_length")
pad2.Reversed = True

sketch6 = body.newObject("Sketcher::SketchObject", "Sketch005")
sketch6.AttachmentSupport = (doc.getObject("XY_Plane"), [""])
sketch6.MapMode = "FlatFace"
sketch6.AttachmentOffset = App.Placement(App.Vector(0, 0, 4), App.Rotation())
sketch6.addGeometry([
    Part.LineSegment(App.Vector(224, 40, 0), App.Vector(220, 40, 0)),
    Part.LineSegment(App.Vector(220, 40, 0), App.Vector(220, 36, 0)),
    Part.LineSegment(App.Vector(220, 36, 0), App.Vector(224, 36, 0)),
    Part.LineSegment(App.Vector(224, 36, 0), App.Vector(224, 40, 0)),
    Part.LineSegment(App.Vector(224, -46, 0), App.Vector(220, -46, 0)),
    Part.LineSegment(App.Vector(220, -46, 0), App.Vector(220, -50, 0)),
    Part.LineSegment(App.Vector(220, -50, 0), App.Vector(224, -50, 0)),
    Part.LineSegment(App.Vector(224, -50, 0), App.Vector(224, -46, 0)),
], False)
sketch6.addConstraint([
    Sketcher.Constraint("Coincident", 0, 2, 1, 1),
    Sketcher.Constraint("Coincident", 1, 2, 2, 1),
    Sketcher.Constraint("Coincident", 2, 2, 3, 1),
    Sketcher.Constraint("Coincident", 3, 2, 0, 1),
    Sketcher.Constraint("Coincident", 4, 2, 5, 1),
    Sketcher.Constraint("Coincident", 5, 2, 6, 1),
    Sketcher.Constraint("Coincident", 6, 2, 7, 1),
    Sketcher.Constraint("Coincident", 7, 2, 4, 1),
    Sketcher.Constraint("Horizontal", 0),
    Sketcher.Constraint("Vertical", 1),
    Sketcher.Constraint("Horizontal", 2),
    Sketcher.Constraint("Vertical", 3),
    Sketcher.Constraint("Horizontal", 4),
    Sketcher.Constraint("Vertical", 5),
    Sketcher.Constraint("Horizontal", 6),
    Sketcher.Constraint("Vertical", 7),
    Sketcher.Constraint("Vertical", 1, 2, 4, 2),
    Sketcher.Constraint("Vertical", 3, 2, 6, 2),
    Sketcher.Constraint("Equal", 6, 1),
    Sketcher.Constraint("Equal", 3, 5),
    Sketcher.Constraint("DistanceX", 0, 2, 0, 1, Q("4 mm")),
    Sketcher.Constraint("DistanceX", -1, 1, 0, 2, Q("220 mm")),
    Sketcher.Constraint("DistanceY", -1, 1, 0, 2, Q("40 mm")),
    Sketcher.Constraint("DistanceY", 4, 2, -1, 1, Q("46 mm")),
])
sketch6.setExpression("Constraints[20]", "Params.sketch6_width")
pad3 = body.newObject("PartDesign::Pad", "Pad002")
pad3.Profile = sketch6
pad3.setExpression("Length", "Params.pad3_length")
pad3.Reversed = True
doc.recompute()

mirrored2 = body.newObject("PartDesign::Mirrored", "Mirrored001")
mirrored2.Originals = [pad3]
mirrored2.MirrorPlane = (doc.getObject("YZ_Plane"), [""])
body.Tip = mirrored2

doc.recompute()
